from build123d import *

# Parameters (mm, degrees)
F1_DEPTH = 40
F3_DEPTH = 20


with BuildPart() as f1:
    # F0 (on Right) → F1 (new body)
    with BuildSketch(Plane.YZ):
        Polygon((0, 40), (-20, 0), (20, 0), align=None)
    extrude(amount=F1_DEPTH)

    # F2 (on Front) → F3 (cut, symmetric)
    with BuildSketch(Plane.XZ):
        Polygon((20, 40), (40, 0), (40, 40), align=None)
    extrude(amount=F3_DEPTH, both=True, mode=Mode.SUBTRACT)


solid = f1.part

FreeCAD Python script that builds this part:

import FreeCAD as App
import Part
import Sketcher

V = App.Vector
Q = App.Units.Quantity

doc = App.newDocument("Part")
body = doc.addObject("PartDesign::Body", "Body")

sketch1 = body.newObject("Sketcher::SketchObject", "Sketch")
sketch1.AttachmentSupport = (doc.getObject("YZ_Plane"), [""])
sketch1.MapMode = "FlatFace"
sketch1.addGeometry([
    Part.LineSegment(V(0, 40, 0), V(-20, 0, 0)),
    Part.LineSegment(V(-20, 0, 0), V(20, 0, 0)),
    Part.LineSegment(V(20, 0, 0), V(0, 40, 0)),
], False)
sketch1.addConstraint([
    Sketcher.Constraint("Coincident", 0, 2, 1, 1),
    Sketcher.Constraint("Coincident", 1, 2, 2, 1),
    Sketcher.Constraint("Coincident", 2, 2, 0, 1),
    Sketcher.Constraint("Horizontal", 1),
    Sketcher.Constraint("Symmetric", 0, 2, 1, 2, -1, 1),
    Sketcher.Constraint("PointOnObject", 2, 2, -2),
    Sketcher.Constraint("DistanceX", 1, 1, 1, 2, Q("40 mm")),
    Sketcher.Constraint("DistanceY", -1, 1, 2, 2, Q("40 mm")),
])
pad1 = body.newObject("PartDesign::Pad", "Pad")
pad1.Profile = sketch1
pad1.Length = 40

sketch2 = body.newObject("Sketcher::SketchObject", "Sketch001")
sketch2.AttachmentSupport = (doc.getObject("XZ_Plane"), [""])
sketch2.MapMode = "FlatFace"
sketch2.addGeometry([
    Part.LineSegment(V(20, 40, 0), V(40, 0, 0)),
    Part.LineSegment(V(40, 0, 0), V(40, 40, 0)),
    Part.LineSegment(V(40, 40, 0), V(20, 40, 0)),
], False)
sketch2.addConstraint([
    Sketcher.Constraint("Coincident", 0, 2, 1, 1),
    Sketcher.Constraint("Coincident", 1, 2, 2, 1),
    Sketcher.Constraint("Coincident", 2, 2, 0, 1),
    Sketcher.Constraint("Vertical", 1),
    Sketcher.Constraint("Horizontal", 2),
    Sketcher.Constraint("PointOnObject", 0, 2, -1),
    Sketcher.Constraint("DistanceX", 2, 2, 2, 1, Q("20 mm")),
    Sketcher.Constraint("DistanceY", 1, 1, 1, 2, Q("40 mm")),
    Sketcher.Constraint("DistanceX", -1, 1, 0, 2, Q("40 mm")),
])
pocket1 = body.newObject("PartDesign::Pocket", "Pocket")
pocket1.Profile = sketch2
pocket1.Length = 40
pocket1.Midplane = True

doc.recompute()
